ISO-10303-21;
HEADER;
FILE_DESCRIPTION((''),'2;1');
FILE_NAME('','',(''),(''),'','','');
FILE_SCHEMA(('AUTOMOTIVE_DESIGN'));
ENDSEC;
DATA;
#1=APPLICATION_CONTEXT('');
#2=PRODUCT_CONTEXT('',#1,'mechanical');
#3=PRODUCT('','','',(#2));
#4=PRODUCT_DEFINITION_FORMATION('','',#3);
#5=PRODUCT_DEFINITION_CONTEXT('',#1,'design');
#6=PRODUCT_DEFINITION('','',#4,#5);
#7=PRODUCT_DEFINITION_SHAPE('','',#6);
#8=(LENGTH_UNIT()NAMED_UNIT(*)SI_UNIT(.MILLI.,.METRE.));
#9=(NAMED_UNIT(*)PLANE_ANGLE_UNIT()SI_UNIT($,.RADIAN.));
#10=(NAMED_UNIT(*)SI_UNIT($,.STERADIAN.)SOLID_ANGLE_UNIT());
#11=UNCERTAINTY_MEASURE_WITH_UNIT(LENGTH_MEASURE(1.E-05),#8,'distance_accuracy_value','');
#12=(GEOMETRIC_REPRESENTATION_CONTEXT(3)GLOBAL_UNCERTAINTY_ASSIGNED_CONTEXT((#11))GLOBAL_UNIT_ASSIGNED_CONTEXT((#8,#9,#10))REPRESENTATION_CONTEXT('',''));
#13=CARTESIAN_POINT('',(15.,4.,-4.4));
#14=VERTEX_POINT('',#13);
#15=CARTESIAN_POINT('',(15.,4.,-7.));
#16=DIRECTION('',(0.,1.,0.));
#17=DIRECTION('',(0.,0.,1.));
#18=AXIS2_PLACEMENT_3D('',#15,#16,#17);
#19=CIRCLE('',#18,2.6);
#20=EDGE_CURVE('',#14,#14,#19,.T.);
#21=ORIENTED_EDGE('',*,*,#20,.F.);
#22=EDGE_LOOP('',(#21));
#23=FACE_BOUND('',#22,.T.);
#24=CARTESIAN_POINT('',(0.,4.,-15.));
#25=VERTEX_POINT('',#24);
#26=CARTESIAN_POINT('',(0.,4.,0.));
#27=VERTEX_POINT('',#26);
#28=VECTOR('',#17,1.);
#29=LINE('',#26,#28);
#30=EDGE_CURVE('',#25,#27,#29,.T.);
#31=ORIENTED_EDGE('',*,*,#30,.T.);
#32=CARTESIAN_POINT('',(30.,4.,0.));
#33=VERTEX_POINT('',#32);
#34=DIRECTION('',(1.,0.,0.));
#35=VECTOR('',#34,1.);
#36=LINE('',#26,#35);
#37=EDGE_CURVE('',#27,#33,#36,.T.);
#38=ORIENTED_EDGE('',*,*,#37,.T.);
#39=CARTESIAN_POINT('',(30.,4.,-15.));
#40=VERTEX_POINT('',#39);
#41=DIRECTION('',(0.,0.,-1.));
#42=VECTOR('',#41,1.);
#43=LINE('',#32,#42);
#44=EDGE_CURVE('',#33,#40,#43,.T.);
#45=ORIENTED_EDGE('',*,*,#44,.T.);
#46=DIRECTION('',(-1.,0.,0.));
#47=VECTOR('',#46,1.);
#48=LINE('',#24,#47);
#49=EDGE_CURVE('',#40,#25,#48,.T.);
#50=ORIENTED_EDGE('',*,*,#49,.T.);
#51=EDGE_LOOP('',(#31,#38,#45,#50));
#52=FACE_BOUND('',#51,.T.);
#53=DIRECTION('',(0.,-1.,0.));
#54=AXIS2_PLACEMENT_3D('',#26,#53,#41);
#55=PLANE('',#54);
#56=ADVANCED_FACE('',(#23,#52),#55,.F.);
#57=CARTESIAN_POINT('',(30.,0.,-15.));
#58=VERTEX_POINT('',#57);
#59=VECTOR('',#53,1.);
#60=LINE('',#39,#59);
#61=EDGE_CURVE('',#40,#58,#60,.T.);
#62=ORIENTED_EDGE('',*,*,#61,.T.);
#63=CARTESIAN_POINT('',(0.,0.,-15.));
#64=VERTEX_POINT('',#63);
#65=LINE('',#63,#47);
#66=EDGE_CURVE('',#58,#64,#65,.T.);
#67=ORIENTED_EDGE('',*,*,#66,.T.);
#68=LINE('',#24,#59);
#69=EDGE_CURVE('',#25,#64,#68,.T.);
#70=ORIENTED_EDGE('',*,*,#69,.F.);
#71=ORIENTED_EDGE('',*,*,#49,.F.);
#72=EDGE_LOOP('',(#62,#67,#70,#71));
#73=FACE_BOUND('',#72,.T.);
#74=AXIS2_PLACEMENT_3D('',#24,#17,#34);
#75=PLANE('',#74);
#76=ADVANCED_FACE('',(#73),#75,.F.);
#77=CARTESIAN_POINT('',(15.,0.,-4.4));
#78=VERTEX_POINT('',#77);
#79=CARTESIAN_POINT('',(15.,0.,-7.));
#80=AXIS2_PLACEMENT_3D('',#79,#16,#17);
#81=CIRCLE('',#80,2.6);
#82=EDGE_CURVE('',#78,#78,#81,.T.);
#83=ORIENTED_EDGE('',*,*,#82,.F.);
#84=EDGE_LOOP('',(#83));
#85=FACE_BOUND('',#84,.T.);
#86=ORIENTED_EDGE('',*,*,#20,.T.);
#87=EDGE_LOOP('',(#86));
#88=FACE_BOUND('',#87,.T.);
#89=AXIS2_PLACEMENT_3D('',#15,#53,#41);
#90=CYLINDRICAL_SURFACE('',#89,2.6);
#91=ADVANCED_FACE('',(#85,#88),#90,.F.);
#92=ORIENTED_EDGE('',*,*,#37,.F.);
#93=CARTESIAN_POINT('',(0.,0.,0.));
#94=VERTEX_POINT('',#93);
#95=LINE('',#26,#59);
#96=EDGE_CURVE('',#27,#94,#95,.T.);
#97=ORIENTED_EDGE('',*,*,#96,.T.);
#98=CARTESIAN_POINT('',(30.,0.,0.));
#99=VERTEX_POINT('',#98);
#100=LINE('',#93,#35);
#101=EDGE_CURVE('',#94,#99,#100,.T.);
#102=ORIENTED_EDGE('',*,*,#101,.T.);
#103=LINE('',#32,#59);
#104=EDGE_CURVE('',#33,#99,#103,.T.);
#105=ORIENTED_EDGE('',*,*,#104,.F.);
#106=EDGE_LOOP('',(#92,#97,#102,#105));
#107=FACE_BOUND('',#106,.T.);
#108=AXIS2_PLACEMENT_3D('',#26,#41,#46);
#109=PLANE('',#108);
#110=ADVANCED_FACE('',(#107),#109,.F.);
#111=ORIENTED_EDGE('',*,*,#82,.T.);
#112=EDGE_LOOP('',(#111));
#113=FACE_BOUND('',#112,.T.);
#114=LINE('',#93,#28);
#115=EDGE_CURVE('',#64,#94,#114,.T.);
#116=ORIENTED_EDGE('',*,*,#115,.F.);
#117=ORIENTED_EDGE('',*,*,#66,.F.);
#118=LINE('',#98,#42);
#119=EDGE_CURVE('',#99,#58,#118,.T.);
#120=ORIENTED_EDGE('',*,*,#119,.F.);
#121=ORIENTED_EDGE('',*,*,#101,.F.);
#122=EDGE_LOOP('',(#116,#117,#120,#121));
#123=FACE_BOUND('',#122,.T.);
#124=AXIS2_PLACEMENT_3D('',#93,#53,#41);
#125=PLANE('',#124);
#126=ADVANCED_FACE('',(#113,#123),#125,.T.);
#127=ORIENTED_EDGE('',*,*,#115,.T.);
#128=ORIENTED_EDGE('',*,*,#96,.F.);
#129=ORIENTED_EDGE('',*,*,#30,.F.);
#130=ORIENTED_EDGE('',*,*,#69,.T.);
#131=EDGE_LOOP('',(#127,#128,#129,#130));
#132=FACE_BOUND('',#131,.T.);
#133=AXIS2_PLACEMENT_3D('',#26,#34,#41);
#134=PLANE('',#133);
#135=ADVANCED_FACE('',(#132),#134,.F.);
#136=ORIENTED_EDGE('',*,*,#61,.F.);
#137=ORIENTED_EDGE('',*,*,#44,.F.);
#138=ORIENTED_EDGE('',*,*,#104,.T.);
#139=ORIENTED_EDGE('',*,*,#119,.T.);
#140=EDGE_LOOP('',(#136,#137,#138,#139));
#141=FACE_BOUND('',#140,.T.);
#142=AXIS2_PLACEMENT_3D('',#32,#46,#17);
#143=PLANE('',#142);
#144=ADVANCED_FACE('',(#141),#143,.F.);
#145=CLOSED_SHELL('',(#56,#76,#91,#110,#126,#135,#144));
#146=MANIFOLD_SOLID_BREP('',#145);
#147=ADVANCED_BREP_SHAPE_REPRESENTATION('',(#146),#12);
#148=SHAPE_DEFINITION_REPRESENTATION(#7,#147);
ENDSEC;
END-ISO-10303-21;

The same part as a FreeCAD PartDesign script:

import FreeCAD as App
import Part
import Sketcher
Q = App.Units.Quantity


def add_polygon(sketch, points):
    """Adds a closed chain of lines whose ends are joined by coincident constraints."""
    first, n = sketch.GeometryCount, len(points)
    for a, b in zip(points, points[1:] + points[:1]):
        sketch.addGeometry(Part.LineSegment(App.Vector(*a, 0), App.Vector(*b, 0)), False)
    for i in range(n):
        sketch.addConstraint(Sketcher.Constraint("Coincident", first + i, 2, first + (i + 1) % n, 1))

doc = App.newDocument("Part")
body = doc.addObject("PartDesign::Body", "Body")

# Sketch on XZ plane
sketch1 = body.newObject("Sketcher::SketchObject", "Sketch")
sketch1.AttachmentSupport = (doc.getObject("XZ_Plane"), [""])
sketch1.MapMode = "FlatFace"
add_polygon(sketch1, [(0, -15), (0, 0), (30, 0), (30, -15)])  # lines 0-3
sketch1.addGeometry(Part.Circle(App.Vector(15, -7, 0), App.Vector(0, 0, 1), 2.6), False)  # 4
sketch1.addConstraint([
    Sketcher.Constraint("Vertical", 0),
    Sketcher.Constraint("Horizontal", 1),
    Sketcher.Constraint("Vertical", 2),
    Sketcher.Constraint("Horizontal", 3),
    Sketcher.Constraint("Coincident", 0, 2, -1, 1),
    Sketcher.Constraint("Diameter", 4, Q("5.2 mm")),
    Sketcher.Constraint("DistanceX", 1, 1, 1, 2, Q("30 mm")),
    Sketcher.Constraint("DistanceY", 0, 1, 0, 2, Q("15 mm")),
    Sketcher.Constraint("DistanceX", -1, 1, 4, 3, Q("15 mm")),
    Sketcher.Constraint("DistanceY", 4, 3, -1, 1, Q("7 mm")),
])
pad1 = body.newObject("PartDesign::Pad", "Pad")
pad1.Profile = sketch1
pad1.Length = 4
pad1.Reversed = True

doc.recompute()
